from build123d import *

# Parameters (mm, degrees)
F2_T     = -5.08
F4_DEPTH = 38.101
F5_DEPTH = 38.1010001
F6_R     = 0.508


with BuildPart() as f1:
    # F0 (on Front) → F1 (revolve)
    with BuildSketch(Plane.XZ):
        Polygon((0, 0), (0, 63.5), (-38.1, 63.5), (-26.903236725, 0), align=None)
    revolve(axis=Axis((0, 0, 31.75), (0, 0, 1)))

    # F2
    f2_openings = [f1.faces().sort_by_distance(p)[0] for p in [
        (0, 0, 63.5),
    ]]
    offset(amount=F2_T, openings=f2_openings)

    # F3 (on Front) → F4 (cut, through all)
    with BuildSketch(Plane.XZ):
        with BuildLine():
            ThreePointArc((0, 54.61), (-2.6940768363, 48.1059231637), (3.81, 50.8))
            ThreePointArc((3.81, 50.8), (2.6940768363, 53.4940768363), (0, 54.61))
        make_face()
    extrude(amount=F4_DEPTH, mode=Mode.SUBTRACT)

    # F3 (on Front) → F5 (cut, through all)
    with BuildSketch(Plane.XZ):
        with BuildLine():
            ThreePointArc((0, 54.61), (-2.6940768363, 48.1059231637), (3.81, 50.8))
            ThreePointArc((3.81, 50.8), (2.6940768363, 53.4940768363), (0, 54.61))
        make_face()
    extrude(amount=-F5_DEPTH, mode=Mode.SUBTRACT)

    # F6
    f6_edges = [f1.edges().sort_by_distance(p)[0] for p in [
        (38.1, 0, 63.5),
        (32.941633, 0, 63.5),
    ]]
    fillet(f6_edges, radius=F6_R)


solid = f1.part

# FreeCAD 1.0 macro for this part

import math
import FreeCAD as App
import Part
import Sketcher
from FreeCAD import Vector
Q = App.Units.Quantity


def edges_at(feature, points):
    """Names of the edges that pass closest to the given points."""
    edges = feature.Shape.Edges
    near = lambda p: min(range(len(edges)), key=lambda i: edges[i].distToShape(Part.Vertex(*p))[0])
    return sorted({f"Edge{near(p) + 1}" for p in points})


def faces_at(feature, points):
    """Names of the faces that lie closest to the given points."""
    faces = feature.Shape.Faces
    near = lambda p: min(range(len(faces)), key=lambda i: faces[i].distToShape(Part.Vertex(*p))[0])
    return sorted({f"Face{near(p) + 1}" for p in points})

doc = App.newDocument("Part")
body = doc.addObject("PartDesign::Body", "Body")

# Sketch on XZ plane
sketch1 = body.newObject("Sketcher::SketchObject", "Sketch")
sketch1.AttachmentSupport = (doc.getObject("XZ_Plane"), [""])
sketch1.MapMode = "FlatFace"
sketch1.addGeometry([
    Part.LineSegment(Vector(0, 0, 0), Vector(0, 64, 0)),
    Part.LineSegment(Vector(0, 64, 0), Vector(-38, 64, 0)),
    Part.LineSegment(Vector(-38, 64, 0), Vector(-27, 0, 0)),
    Part.LineSegment(Vector(-27, 0, 0), Vector(0, 0, 0)),
], False)
sketch1.addConstraint([
    Sketcher.Constraint("Coincident", 0, 2, 1, 1),
    Sketcher.Constraint("Coincident", 1, 2, 2, 1),
    Sketcher.Constraint("Coincident", 2, 2, 3, 1),
    Sketcher.Constraint("Coincident", 3, 2, 0, 1),
    Sketcher.Constraint("Vertical", 0),
    Sketcher.Constraint("Horizontal", 1),
    Sketcher.Constraint("Horizontal", 3),
    Sketcher.Constraint("Coincident", 3, 2, -1, 1),
    Sketcher.Constraint("DistanceX", 1, 2, 1, 1, Q("1.5 in")),
    Sketcher.Constraint("DistanceY", 0, 1, 0, 2, Q("2.5 in")),
    Sketcher.Constraint("Angle", 2, Q("-80 deg")),
])
revolution = body.newObject("PartDesign::Revolution", "Revolution")
revolution.Profile = sketch1
revolution.ReferenceAxis = (sketch1, ["V_Axis"])
revolution.Angle = 360
doc.recompute()

thickness = body.newObject("PartDesign::Thickness", "Thickness")
thickness.Base = (revolution, faces_at(revolution, [(0, 0, 63.5)]))
thickness.Value = Q("0.2 in")
thickness.Reversed = True
thickness.Join = "Arc"

# Sketch on XZ plane
sketch2 = body.newObject("Sketcher::SketchObject", "Sketch001")
sketch2.AttachmentSupport = (doc.getObject("XZ_Plane"), [""])
sketch2.MapMode = "FlatFace"
sketch2.addGeometry([
    Part.ArcOfCircle(Part.Circle(Vector(0, 50.8, 0), Vector(0, 0, 1), 3.8), math.radians(90), math.radians(360)),
    Part.ArcOfCircle(Part.Circle(Vector(0, 50.8, 0), Vector(0, 0, 1), 3.8), math.radians(0), math.radians(90)),
], False)
sketch2.addConstraint([
    Sketcher.Constraint("Tangent", 0, 1, 1, 2),
    Sketcher.Constraint("Coincident", 1, 1, 0, 2),
    Sketcher.Constraint("PointOnObject", 0, 3, -2),
    Sketcher.Constraint("PointOnObject", 0, 1, -2),
    Sketcher.Constraint("Horizontal", 0, 3, 1, 1),
    Sketcher.Constraint("Radius", 0, Q("0.15 in")),
    Sketcher.Constraint("DistanceY", -1, 1, 0, 3, Q("2 in")),
])
pocket1 = body.newObject("PartDesign::Pocket", "Pocket")
pocket1.Profile = sketch2
pocket1.Type = "ThroughAll"
pocket1.Reversed = True

# Sketch on XZ plane
sketch3 = body.newObject("Sketcher::SketchObject", "Sketch002")
sketch3.AttachmentSupport = (doc.getObject("XZ_Plane"), [""])
sketch3.MapMode = "FlatFace"
sketch3.addGeometry([
    Part.ArcOfCircle(Part.Circle(Vector(0, 50.8, 0), Vector(0, 0, 1), 3.8), math.radians(90), math.radians(360)),
    Part.ArcOfCircle(Part.Circle(Vector(0, 50.8, 0), Vector(0, 0, 1), 3.8), math.radians(0), math.radians(90)),
], False)
sketch3.addConstraint([
    Sketcher.Constraint("Tangent", 0, 1, 1, 2),
    Sketcher.Constraint("Coincident", 1, 1, 0, 2),
    Sketcher.Constraint("PointOnObject", 0, 3, -2),
    Sketcher.Constraint("PointOnObject", 0, 1, -2),
    Sketcher.Constraint("Horizontal", 0, 3, 1, 1),
    Sketcher.Constraint("Radius", 0, Q("0.15 in")),
    Sketcher.Constraint("DistanceY", -1, 1, 0, 3, Q("2 in")),
])
pocket2 = body.newObject("PartDesign::Pocket", "Pocket001")
pocket2.Profile = sketch3
pocket2.Type = "ThroughAll"
doc.recompute()

fillet = body.newObject("PartDesign::Fillet", "Fillet")
fillet.Base = (pocket2, edges_at(pocket2, [(38.1, 0, 63.5), (32.942, 0, 63.5)]))
fillet.Radius = Q("0.02 in")

doc.recompute()
